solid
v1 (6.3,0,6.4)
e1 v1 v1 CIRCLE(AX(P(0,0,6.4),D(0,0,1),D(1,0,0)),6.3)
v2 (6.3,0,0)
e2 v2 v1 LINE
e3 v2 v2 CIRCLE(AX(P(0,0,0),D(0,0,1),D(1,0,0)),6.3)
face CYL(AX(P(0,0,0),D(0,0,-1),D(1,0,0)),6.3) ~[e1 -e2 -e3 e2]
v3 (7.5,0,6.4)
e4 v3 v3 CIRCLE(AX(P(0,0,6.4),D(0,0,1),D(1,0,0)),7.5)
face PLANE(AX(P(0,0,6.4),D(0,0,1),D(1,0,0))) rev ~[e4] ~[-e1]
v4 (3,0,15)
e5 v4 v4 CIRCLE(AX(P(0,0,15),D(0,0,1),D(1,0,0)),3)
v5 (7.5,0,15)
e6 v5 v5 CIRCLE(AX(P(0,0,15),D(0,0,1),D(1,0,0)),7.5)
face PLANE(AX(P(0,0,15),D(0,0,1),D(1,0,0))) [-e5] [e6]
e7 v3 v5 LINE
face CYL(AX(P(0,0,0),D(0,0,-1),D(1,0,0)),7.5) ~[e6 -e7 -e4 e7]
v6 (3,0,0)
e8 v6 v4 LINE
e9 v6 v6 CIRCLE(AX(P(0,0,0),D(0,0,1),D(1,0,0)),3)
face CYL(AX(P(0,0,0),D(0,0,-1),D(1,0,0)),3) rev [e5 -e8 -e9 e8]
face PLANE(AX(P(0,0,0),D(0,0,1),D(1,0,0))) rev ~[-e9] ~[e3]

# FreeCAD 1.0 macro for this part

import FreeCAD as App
import Part
import Sketcher
from FreeCAD import Vector
Q = App.Units.Quantity

doc = App.newDocument("Part")
params = doc.addObject("Spreadsheet::Sheet", "Params")
for row, (alias, value) in enumerate([
    ("sketch1_diameter", "15 mm"),
    ("sketch1_diameter2", "6 mm"),
    ("pad1_length", "15 mm"),
    ("sketch2_diameter", "15 mm"),
    ("sketch2_diameter2", "12.6 mm"),
    ("pocket1_length", "6.4 mm"),
], start=1):
    params.set(f"A{row}", alias)
    params.set(f"B{row}", "=" + value)
    params.setAlias(f"B{row}", alias)

body = doc.addObject("PartDesign::Body", "Body")

# Sketch on XY plane
sketch1 = body.newObject("Sketcher::SketchObject", "Sketch")
sketch1.AttachmentSupport = (doc.getObject("XY_Plane"), [""])
sketch1.MapMode = "FlatFace"
sketch1.addGeometry([
    Part.Circle(Vector(0, 0, 0), Vector(0, 0, 1), 7.5),
    Part.Circle(Vector(0, 0, 0), Vector(0, 0, 1), 3),
], False)
sketch1.addConstraint([
    Sketcher.Constraint("Coincident", 0, 3, -1, 1),
    Sketcher.Constraint("Coincident", 1, 3, -1, 1),
    Sketcher.Constraint("Diameter", 0, Q("15 mm")),
    Sketcher.Constraint("Diameter", 1, Q("6 mm")),
])
sketch1.setExpression("Constraints[2]", "Params.sketch1_diameter")
sketch1.setExpression("Constraints[3]", "Params.sketch1_diameter2")
pad1 = body.newObject("PartDesign::Pad", "Pad")
pad1.Profile = sketch1
pad1.setExpression("Length", "Params.pad1_length")

# Sketch on XY plane
sketch2 = body.newObject("Sketcher::SketchObject", "Sketch001")
sketch2.AttachmentSupport = (doc.getObject("XY_Plane"), [""])
sketch2.MapMode = "FlatFace"
sketch2.addGeometry([
    Part.Circle(Vector(0, 0, 0), Vector(0, 0, 1), 8),
    Part.Circle(Vector(0, 0, 0), Vector(0, 0, 1), 6),
], False)
sketch2.addConstraint([
    Sketcher.Constraint("Coincident", 0, 3, -1, 1),
    Sketcher.Constraint("Coincident", 1, 3, -1, 1),
    Sketcher.Constraint("Diameter", 0, Q("15 mm")),
    Sketcher.Constraint("Diameter", 1, Q("12.6 mm")),
])
sketch2.setExpression("Constraints[2]", "Params.sketch2_diameter")
sketch2.setExpression("Constraints[3]", "Params.sketch2_diameter2")
pocket1 = body.newObject("PartDesign::Pocket", "Pocket")
pocket1.Profile = sketch2
pocket1.setExpression("Length", "Params.pocket1_length")
pocket1.Reversed = True

doc.recompute()
